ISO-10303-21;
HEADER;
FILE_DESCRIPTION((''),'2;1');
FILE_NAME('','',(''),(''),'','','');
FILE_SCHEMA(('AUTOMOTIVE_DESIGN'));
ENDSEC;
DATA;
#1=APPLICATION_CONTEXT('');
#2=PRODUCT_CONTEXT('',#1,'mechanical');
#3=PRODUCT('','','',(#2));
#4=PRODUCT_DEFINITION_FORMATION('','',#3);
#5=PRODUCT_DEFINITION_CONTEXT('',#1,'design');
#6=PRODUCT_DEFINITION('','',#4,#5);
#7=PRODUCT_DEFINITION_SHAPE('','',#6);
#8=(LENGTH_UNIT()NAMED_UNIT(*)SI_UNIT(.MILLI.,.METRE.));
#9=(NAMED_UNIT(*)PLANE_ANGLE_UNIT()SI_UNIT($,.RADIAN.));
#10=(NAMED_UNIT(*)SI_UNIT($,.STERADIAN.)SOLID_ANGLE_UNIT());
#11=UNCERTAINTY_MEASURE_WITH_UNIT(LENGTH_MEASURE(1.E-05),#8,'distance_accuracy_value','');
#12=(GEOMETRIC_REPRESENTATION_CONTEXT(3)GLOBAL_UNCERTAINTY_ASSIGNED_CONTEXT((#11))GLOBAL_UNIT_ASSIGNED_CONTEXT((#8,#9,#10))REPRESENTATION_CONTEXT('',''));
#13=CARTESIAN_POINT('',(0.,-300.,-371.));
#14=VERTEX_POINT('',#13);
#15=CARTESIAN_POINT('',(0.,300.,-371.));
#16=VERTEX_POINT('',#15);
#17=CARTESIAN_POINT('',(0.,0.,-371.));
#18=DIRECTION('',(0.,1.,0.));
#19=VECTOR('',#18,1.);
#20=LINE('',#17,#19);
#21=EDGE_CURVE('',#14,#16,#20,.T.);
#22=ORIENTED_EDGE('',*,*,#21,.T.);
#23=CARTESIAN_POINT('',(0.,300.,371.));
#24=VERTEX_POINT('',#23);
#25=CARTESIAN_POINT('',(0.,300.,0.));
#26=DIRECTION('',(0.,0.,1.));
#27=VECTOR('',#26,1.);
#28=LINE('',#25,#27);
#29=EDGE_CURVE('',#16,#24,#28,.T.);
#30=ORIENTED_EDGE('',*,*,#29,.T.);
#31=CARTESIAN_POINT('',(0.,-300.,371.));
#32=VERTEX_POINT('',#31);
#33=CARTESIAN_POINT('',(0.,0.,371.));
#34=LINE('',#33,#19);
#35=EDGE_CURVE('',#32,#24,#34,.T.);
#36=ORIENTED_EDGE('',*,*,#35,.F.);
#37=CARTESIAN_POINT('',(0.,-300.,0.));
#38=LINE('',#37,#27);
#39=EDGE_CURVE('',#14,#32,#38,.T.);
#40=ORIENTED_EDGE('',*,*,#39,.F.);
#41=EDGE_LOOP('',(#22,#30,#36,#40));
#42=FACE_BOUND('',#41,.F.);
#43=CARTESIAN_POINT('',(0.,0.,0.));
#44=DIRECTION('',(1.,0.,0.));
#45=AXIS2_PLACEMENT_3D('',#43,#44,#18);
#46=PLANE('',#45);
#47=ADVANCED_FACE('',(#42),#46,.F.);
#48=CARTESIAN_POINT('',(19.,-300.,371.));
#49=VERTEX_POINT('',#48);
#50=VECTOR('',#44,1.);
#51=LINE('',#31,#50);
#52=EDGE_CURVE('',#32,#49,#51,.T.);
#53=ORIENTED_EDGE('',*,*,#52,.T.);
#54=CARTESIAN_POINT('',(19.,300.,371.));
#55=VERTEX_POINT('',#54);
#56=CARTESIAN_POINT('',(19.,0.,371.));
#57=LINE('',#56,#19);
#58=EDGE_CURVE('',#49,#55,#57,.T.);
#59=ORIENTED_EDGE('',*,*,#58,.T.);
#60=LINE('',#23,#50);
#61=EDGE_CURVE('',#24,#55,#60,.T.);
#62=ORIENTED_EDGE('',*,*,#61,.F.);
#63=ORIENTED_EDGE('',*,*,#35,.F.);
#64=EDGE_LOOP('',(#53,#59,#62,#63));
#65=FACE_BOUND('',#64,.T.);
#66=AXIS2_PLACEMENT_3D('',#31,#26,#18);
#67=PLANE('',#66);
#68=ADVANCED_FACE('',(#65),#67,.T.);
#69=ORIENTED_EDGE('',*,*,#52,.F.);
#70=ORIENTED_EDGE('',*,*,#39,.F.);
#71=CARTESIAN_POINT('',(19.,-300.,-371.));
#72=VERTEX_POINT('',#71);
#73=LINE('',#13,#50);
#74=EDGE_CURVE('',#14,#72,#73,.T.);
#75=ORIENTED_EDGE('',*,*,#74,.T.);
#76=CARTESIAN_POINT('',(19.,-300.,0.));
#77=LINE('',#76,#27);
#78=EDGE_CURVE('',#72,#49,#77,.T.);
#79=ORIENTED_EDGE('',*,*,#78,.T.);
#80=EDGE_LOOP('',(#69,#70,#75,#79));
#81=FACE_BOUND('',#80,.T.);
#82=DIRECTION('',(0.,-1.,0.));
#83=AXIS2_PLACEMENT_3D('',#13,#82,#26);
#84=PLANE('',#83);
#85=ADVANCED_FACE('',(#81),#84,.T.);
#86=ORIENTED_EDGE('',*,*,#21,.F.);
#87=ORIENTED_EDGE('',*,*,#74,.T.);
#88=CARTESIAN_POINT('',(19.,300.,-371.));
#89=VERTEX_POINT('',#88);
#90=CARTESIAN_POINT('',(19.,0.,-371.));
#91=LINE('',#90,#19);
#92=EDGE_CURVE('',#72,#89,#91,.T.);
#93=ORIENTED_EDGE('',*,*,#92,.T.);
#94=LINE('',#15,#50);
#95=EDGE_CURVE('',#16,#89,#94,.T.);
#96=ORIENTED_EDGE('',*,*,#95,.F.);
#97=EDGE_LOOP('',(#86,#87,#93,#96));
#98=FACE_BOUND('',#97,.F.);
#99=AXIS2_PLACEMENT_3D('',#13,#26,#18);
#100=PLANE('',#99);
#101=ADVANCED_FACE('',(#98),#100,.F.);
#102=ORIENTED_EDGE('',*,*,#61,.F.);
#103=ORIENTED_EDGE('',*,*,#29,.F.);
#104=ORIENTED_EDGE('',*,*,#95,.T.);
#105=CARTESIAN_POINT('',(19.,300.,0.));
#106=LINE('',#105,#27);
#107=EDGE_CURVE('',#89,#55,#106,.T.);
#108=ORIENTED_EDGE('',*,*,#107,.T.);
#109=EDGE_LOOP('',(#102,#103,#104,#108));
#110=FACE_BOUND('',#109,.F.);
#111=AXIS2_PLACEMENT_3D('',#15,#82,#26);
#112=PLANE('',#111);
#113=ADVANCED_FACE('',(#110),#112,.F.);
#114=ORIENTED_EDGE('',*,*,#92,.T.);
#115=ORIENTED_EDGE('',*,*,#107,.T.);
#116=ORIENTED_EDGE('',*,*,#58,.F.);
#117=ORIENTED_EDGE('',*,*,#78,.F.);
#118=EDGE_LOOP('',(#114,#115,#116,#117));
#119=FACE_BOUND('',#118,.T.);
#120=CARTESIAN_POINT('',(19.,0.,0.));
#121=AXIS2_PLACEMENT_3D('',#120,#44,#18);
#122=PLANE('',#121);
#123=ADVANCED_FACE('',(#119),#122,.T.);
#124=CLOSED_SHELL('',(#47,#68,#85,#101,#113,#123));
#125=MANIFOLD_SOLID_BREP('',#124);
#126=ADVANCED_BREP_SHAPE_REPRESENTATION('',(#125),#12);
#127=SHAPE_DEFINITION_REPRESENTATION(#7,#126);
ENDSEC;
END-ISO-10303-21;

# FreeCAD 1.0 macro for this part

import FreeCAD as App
import Part
import Sketcher

doc = App.newDocument("Part")
params = doc.addObject("Spreadsheet::Sheet", "Params")
for row, (alias, value) in enumerate([
    ("sketch1_width", "600 mm"),
    ("sketch1_height", "742 mm"),
    ("pad1_length", "19 mm"),
], start=1):
    params.set(f"A{row}", alias)
    params.set(f"B{row}", "=" + value)
    params.setAlias(f"B{row}", alias)

body = doc.addObject("PartDesign::Body", "Body")

# Sketch on YZ plane
sketch1 = doc.addObject("Sketcher::SketchObject", "Sketch")
body.addObject(sketch1)
sketch1.AttachmentSupport = (doc.YZ_Plane, [""])
sketch1.MapMode = "FlatFace"
sketch1.addGeometry(Part.LineSegment(App.Vector(-300, 371, 0), App.Vector(-300, -371, 0)), False)
sketch1.addGeometry(Part.LineSegment(App.Vector(-300, -371, 0), App.Vector(300, -371, 0)), False)
sketch1.addGeometry(Part.LineSegment(App.Vector(300, -371, 0), App.Vector(300, 371, 0)), False)
sketch1.addGeometry(Part.LineSegment(App.Vector(300, 371, 0), App.Vector(-300, 371, 0)), False)
sketch1.addConstraint(Sketcher.Constraint("Coincident", 0, 2, 1, 1))
sketch1.addConstraint(Sketcher.Constraint("Coincident", 1, 2, 2, 1))
sketch1.addConstraint(Sketcher.Constraint("Coincident", 2, 2, 3, 1))
sketch1.addConstraint(Sketcher.Constraint("Coincident", 3, 2, 0, 1))
sketch1.addConstraint(Sketcher.Constraint("Vertical", 0))
sketch1.addConstraint(Sketcher.Constraint("Horizontal", 1))
sketch1.addConstraint(Sketcher.Constraint("Vertical", 2))
sketch1.addConstraint(Sketcher.Constraint("Horizontal", 3))
sketch1.addConstraint(Sketcher.Constraint("Symmetric", 0, 2, 2, 2, -1, 1))
sketch1.addConstraint(Sketcher.Constraint("DistanceX", 1, 1, 1, 2, 600.0))
sketch1.addConstraint(Sketcher.Constraint("DistanceY", 0, 2, 0, 1, 742.0))
sketch1.setExpression("Constraints[9]", "Params.sketch1_width")
sketch1.setExpression("Constraints[10]", "Params.sketch1_height")
pad1 = doc.addObject("PartDesign::Pad", "Pad")
body.addObject(pad1)
pad1.Profile = sketch1
pad1.setExpression("Length", "Params.pad1_length")

doc.recompute()
